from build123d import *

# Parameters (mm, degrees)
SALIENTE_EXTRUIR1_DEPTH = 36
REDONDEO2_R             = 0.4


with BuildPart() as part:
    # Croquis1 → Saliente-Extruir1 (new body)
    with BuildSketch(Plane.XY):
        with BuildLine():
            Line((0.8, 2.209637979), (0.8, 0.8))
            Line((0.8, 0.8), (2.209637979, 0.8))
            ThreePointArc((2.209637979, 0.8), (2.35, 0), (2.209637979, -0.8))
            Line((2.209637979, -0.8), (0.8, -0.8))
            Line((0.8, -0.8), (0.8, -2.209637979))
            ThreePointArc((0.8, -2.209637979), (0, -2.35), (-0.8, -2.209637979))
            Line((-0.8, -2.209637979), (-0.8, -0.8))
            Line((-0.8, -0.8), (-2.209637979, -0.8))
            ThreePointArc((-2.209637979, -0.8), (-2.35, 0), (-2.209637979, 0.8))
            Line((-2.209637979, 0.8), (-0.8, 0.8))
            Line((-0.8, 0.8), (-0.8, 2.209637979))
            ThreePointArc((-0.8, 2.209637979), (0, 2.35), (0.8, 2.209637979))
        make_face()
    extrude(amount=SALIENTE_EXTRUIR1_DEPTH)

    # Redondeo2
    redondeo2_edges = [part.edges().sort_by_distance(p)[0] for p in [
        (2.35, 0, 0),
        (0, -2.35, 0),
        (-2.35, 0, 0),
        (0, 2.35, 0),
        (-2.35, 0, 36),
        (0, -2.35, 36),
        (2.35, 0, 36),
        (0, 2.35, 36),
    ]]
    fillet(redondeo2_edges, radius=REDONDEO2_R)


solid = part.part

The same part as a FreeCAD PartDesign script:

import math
import FreeCAD as App
import Part
import Sketcher
from FreeCAD import Vector


def edges_at(feature, points):
    """Names of the edges that pass closest to the given points."""
    edges = feature.Shape.Edges
    near = lambda p: min(range(len(edges)), key=lambda i: edges[i].distToShape(Part.Vertex(*p))[0])
    return sorted({f"Edge{near(p) + 1}" for p in points})

doc = App.newDocument("Part")
body = doc.addObject("PartDesign::Body", "Body")

sketch1 = body.newObject("Sketcher::SketchObject", "Sketch")
sketch1.AttachmentSupport = (doc.getObject("XY_Plane"), [""])
sketch1.MapMode = "FlatFace"
sketch1.addGeometry(Part.LineSegment(Vector(0.8, 0.8, 0), Vector(0.8, 2.2, 0)), False)
sketch1.addGeometry(Part.ArcOfCircle(Part.Circle(Vector(0, 0, 0), Vector(0, 0, 1), 2.3), math.radians(70), math.radians(110)), False)
sketch1.addGeometry(Part.LineSegment(Vector(-0.8, 2.2, 0), Vector(-0.8, 0.8, 0)), False)
sketch1.addGeometry(Part.LineSegment(Vector(-0.8, 0.8, 0), Vector(-2.2, 0.8, 0)), False)
sketch1.addGeometry(Part.ArcOfCircle(Part.Circle(Vector(0, 0, 0), Vector(0, 0, 1), 2.3), math.radians(160), math.radians(200)), False)
sketch1.addGeometry(Part.LineSegment(Vector(-2.2, -0.8, 0), Vector(-0.8, -0.8, 0)), False)
sketch1.addGeometry(Part.LineSegment(Vector(-0.8, -0.8, 0), Vector(-0.8, -2.2, 0)), False)
sketch1.addGeometry(Part.ArcOfCircle(Part.Circle(Vector(0, 0, 0), Vector(0, 0, 1), 2.3), math.radians(-110), math.radians(-70)), False)
sketch1.addGeometry(Part.LineSegment(Vector(0.8, -2.2, 0), Vector(0.8, -0.8, 0)), False)
sketch1.addGeometry(Part.LineSegment(Vector(0.8, -0.8, 0), Vector(2.2, -0.8, 0)), False)
sketch1.addGeometry(Part.ArcOfCircle(Part.Circle(Vector(0, 0, 0), Vector(0, 0, 1), 2.3), math.radians(-20), math.radians(20)), False)
sketch1.addGeometry(Part.LineSegment(Vector(2.2, 0.8, 0), Vector(0.8, 0.8, 0)), False)
sketch1.addConstraint(Sketcher.Constraint("Coincident", 0, 2, 1, 1))
sketch1.addConstraint(Sketcher.Constraint("Coincident", 1, 2, 2, 1))
sketch1.addConstraint(Sketcher.Constraint("Coincident", 2, 2, 3, 1))
sketch1.addConstraint(Sketcher.Constraint("Coincident", 3, 2, 4, 1))
sketch1.addConstraint(Sketcher.Constraint("Coincident", 4, 2, 5, 1))
sketch1.addConstraint(Sketcher.Constraint("Coincident", 5, 2, 6, 1))
sketch1.addConstraint(Sketcher.Constraint("Coincident", 6, 2, 7, 1))
sketch1.addConstraint(Sketcher.Constraint("Coincident", 7, 2, 8, 1))
sketch1.addConstraint(Sketcher.Constraint("Coincident", 8, 2, 9, 1))
sketch1.addConstraint(Sketcher.Constraint("Coincident", 9, 2, 10, 1))
sketch1.addConstraint(Sketcher.Constraint("Coincident", 10, 2, 11, 1))
sketch1.addConstraint(Sketcher.Constraint("Coincident", 11, 2, 0, 1))
sketch1.addConstraint(Sketcher.Constraint("Vertical", 0))
sketch1.addConstraint(Sketcher.Constraint("Vertical", 2))
sketch1.addConstraint(Sketcher.Constraint("Horizontal", 3))
sketch1.addConstraint(Sketcher.Constraint("Horizontal", 5))
sketch1.addConstraint(Sketcher.Constraint("Vertical", 6))
sketch1.addConstraint(Sketcher.Constraint("Vertical", 8))
sketch1.addConstraint(Sketcher.Constraint("Horizontal", 9))
sketch1.addConstraint(Sketcher.Constraint("Horizontal", 11))
sketch1.addConstraint(Sketcher.Constraint("Coincident", 1, 3, -1, 1))
sketch1.addConstraint(Sketcher.Constraint("Coincident", 4, 3, -1, 1))
sketch1.addConstraint(Sketcher.Constraint("Coincident", 7, 3, -1, 1))
sketch1.addConstraint(Sketcher.Constraint("Coincident", 10, 3, -1, 1))
sketch1.addConstraint(Sketcher.Constraint("Equal", 1, 4))
sketch1.addConstraint(Sketcher.Constraint("Equal", 4, 7))
sketch1.addConstraint(Sketcher.Constraint("Equal", 7, 10))
sketch1.addConstraint(Sketcher.Constraint("Symmetric", 2, 2, 8, 2, -1, 1))
sketch1.addConstraint(Sketcher.Constraint("Symmetric", 5, 2, 11, 2, -1, 1))
sketch1.addConstraint(Sketcher.Constraint("Symmetric", 5, 2, 8, 2, -2))
sketch1.addConstraint(Sketcher.Constraint("Equal", 11, 0))
sketch1.addConstraint(Sketcher.Constraint("Radius", 1, 2.35))
sketch1.addConstraint(Sketcher.Constraint("DistanceX", -1, 1, 0, 2, 0.8))
pad1 = body.newObject("PartDesign::Pad", "Pad")
pad1.Profile = sketch1
pad1.Length = 36
doc.recompute()

fillet = body.newObject("PartDesign::Fillet", "Fillet")
fillet.Base = (pad1, edges_at(pad1, [
    (2.35, 0, 0),
    (0, -2.35, 0),
    (-2.35, 0, 0),
    (0, 2.35, 0),
    (-2.35, 0, 36),
    (0, -2.35, 36),
    (2.35, 0, 36),
    (0, 2.35, 36),
]))
fillet.Radius = 0.4

doc.recompute()
